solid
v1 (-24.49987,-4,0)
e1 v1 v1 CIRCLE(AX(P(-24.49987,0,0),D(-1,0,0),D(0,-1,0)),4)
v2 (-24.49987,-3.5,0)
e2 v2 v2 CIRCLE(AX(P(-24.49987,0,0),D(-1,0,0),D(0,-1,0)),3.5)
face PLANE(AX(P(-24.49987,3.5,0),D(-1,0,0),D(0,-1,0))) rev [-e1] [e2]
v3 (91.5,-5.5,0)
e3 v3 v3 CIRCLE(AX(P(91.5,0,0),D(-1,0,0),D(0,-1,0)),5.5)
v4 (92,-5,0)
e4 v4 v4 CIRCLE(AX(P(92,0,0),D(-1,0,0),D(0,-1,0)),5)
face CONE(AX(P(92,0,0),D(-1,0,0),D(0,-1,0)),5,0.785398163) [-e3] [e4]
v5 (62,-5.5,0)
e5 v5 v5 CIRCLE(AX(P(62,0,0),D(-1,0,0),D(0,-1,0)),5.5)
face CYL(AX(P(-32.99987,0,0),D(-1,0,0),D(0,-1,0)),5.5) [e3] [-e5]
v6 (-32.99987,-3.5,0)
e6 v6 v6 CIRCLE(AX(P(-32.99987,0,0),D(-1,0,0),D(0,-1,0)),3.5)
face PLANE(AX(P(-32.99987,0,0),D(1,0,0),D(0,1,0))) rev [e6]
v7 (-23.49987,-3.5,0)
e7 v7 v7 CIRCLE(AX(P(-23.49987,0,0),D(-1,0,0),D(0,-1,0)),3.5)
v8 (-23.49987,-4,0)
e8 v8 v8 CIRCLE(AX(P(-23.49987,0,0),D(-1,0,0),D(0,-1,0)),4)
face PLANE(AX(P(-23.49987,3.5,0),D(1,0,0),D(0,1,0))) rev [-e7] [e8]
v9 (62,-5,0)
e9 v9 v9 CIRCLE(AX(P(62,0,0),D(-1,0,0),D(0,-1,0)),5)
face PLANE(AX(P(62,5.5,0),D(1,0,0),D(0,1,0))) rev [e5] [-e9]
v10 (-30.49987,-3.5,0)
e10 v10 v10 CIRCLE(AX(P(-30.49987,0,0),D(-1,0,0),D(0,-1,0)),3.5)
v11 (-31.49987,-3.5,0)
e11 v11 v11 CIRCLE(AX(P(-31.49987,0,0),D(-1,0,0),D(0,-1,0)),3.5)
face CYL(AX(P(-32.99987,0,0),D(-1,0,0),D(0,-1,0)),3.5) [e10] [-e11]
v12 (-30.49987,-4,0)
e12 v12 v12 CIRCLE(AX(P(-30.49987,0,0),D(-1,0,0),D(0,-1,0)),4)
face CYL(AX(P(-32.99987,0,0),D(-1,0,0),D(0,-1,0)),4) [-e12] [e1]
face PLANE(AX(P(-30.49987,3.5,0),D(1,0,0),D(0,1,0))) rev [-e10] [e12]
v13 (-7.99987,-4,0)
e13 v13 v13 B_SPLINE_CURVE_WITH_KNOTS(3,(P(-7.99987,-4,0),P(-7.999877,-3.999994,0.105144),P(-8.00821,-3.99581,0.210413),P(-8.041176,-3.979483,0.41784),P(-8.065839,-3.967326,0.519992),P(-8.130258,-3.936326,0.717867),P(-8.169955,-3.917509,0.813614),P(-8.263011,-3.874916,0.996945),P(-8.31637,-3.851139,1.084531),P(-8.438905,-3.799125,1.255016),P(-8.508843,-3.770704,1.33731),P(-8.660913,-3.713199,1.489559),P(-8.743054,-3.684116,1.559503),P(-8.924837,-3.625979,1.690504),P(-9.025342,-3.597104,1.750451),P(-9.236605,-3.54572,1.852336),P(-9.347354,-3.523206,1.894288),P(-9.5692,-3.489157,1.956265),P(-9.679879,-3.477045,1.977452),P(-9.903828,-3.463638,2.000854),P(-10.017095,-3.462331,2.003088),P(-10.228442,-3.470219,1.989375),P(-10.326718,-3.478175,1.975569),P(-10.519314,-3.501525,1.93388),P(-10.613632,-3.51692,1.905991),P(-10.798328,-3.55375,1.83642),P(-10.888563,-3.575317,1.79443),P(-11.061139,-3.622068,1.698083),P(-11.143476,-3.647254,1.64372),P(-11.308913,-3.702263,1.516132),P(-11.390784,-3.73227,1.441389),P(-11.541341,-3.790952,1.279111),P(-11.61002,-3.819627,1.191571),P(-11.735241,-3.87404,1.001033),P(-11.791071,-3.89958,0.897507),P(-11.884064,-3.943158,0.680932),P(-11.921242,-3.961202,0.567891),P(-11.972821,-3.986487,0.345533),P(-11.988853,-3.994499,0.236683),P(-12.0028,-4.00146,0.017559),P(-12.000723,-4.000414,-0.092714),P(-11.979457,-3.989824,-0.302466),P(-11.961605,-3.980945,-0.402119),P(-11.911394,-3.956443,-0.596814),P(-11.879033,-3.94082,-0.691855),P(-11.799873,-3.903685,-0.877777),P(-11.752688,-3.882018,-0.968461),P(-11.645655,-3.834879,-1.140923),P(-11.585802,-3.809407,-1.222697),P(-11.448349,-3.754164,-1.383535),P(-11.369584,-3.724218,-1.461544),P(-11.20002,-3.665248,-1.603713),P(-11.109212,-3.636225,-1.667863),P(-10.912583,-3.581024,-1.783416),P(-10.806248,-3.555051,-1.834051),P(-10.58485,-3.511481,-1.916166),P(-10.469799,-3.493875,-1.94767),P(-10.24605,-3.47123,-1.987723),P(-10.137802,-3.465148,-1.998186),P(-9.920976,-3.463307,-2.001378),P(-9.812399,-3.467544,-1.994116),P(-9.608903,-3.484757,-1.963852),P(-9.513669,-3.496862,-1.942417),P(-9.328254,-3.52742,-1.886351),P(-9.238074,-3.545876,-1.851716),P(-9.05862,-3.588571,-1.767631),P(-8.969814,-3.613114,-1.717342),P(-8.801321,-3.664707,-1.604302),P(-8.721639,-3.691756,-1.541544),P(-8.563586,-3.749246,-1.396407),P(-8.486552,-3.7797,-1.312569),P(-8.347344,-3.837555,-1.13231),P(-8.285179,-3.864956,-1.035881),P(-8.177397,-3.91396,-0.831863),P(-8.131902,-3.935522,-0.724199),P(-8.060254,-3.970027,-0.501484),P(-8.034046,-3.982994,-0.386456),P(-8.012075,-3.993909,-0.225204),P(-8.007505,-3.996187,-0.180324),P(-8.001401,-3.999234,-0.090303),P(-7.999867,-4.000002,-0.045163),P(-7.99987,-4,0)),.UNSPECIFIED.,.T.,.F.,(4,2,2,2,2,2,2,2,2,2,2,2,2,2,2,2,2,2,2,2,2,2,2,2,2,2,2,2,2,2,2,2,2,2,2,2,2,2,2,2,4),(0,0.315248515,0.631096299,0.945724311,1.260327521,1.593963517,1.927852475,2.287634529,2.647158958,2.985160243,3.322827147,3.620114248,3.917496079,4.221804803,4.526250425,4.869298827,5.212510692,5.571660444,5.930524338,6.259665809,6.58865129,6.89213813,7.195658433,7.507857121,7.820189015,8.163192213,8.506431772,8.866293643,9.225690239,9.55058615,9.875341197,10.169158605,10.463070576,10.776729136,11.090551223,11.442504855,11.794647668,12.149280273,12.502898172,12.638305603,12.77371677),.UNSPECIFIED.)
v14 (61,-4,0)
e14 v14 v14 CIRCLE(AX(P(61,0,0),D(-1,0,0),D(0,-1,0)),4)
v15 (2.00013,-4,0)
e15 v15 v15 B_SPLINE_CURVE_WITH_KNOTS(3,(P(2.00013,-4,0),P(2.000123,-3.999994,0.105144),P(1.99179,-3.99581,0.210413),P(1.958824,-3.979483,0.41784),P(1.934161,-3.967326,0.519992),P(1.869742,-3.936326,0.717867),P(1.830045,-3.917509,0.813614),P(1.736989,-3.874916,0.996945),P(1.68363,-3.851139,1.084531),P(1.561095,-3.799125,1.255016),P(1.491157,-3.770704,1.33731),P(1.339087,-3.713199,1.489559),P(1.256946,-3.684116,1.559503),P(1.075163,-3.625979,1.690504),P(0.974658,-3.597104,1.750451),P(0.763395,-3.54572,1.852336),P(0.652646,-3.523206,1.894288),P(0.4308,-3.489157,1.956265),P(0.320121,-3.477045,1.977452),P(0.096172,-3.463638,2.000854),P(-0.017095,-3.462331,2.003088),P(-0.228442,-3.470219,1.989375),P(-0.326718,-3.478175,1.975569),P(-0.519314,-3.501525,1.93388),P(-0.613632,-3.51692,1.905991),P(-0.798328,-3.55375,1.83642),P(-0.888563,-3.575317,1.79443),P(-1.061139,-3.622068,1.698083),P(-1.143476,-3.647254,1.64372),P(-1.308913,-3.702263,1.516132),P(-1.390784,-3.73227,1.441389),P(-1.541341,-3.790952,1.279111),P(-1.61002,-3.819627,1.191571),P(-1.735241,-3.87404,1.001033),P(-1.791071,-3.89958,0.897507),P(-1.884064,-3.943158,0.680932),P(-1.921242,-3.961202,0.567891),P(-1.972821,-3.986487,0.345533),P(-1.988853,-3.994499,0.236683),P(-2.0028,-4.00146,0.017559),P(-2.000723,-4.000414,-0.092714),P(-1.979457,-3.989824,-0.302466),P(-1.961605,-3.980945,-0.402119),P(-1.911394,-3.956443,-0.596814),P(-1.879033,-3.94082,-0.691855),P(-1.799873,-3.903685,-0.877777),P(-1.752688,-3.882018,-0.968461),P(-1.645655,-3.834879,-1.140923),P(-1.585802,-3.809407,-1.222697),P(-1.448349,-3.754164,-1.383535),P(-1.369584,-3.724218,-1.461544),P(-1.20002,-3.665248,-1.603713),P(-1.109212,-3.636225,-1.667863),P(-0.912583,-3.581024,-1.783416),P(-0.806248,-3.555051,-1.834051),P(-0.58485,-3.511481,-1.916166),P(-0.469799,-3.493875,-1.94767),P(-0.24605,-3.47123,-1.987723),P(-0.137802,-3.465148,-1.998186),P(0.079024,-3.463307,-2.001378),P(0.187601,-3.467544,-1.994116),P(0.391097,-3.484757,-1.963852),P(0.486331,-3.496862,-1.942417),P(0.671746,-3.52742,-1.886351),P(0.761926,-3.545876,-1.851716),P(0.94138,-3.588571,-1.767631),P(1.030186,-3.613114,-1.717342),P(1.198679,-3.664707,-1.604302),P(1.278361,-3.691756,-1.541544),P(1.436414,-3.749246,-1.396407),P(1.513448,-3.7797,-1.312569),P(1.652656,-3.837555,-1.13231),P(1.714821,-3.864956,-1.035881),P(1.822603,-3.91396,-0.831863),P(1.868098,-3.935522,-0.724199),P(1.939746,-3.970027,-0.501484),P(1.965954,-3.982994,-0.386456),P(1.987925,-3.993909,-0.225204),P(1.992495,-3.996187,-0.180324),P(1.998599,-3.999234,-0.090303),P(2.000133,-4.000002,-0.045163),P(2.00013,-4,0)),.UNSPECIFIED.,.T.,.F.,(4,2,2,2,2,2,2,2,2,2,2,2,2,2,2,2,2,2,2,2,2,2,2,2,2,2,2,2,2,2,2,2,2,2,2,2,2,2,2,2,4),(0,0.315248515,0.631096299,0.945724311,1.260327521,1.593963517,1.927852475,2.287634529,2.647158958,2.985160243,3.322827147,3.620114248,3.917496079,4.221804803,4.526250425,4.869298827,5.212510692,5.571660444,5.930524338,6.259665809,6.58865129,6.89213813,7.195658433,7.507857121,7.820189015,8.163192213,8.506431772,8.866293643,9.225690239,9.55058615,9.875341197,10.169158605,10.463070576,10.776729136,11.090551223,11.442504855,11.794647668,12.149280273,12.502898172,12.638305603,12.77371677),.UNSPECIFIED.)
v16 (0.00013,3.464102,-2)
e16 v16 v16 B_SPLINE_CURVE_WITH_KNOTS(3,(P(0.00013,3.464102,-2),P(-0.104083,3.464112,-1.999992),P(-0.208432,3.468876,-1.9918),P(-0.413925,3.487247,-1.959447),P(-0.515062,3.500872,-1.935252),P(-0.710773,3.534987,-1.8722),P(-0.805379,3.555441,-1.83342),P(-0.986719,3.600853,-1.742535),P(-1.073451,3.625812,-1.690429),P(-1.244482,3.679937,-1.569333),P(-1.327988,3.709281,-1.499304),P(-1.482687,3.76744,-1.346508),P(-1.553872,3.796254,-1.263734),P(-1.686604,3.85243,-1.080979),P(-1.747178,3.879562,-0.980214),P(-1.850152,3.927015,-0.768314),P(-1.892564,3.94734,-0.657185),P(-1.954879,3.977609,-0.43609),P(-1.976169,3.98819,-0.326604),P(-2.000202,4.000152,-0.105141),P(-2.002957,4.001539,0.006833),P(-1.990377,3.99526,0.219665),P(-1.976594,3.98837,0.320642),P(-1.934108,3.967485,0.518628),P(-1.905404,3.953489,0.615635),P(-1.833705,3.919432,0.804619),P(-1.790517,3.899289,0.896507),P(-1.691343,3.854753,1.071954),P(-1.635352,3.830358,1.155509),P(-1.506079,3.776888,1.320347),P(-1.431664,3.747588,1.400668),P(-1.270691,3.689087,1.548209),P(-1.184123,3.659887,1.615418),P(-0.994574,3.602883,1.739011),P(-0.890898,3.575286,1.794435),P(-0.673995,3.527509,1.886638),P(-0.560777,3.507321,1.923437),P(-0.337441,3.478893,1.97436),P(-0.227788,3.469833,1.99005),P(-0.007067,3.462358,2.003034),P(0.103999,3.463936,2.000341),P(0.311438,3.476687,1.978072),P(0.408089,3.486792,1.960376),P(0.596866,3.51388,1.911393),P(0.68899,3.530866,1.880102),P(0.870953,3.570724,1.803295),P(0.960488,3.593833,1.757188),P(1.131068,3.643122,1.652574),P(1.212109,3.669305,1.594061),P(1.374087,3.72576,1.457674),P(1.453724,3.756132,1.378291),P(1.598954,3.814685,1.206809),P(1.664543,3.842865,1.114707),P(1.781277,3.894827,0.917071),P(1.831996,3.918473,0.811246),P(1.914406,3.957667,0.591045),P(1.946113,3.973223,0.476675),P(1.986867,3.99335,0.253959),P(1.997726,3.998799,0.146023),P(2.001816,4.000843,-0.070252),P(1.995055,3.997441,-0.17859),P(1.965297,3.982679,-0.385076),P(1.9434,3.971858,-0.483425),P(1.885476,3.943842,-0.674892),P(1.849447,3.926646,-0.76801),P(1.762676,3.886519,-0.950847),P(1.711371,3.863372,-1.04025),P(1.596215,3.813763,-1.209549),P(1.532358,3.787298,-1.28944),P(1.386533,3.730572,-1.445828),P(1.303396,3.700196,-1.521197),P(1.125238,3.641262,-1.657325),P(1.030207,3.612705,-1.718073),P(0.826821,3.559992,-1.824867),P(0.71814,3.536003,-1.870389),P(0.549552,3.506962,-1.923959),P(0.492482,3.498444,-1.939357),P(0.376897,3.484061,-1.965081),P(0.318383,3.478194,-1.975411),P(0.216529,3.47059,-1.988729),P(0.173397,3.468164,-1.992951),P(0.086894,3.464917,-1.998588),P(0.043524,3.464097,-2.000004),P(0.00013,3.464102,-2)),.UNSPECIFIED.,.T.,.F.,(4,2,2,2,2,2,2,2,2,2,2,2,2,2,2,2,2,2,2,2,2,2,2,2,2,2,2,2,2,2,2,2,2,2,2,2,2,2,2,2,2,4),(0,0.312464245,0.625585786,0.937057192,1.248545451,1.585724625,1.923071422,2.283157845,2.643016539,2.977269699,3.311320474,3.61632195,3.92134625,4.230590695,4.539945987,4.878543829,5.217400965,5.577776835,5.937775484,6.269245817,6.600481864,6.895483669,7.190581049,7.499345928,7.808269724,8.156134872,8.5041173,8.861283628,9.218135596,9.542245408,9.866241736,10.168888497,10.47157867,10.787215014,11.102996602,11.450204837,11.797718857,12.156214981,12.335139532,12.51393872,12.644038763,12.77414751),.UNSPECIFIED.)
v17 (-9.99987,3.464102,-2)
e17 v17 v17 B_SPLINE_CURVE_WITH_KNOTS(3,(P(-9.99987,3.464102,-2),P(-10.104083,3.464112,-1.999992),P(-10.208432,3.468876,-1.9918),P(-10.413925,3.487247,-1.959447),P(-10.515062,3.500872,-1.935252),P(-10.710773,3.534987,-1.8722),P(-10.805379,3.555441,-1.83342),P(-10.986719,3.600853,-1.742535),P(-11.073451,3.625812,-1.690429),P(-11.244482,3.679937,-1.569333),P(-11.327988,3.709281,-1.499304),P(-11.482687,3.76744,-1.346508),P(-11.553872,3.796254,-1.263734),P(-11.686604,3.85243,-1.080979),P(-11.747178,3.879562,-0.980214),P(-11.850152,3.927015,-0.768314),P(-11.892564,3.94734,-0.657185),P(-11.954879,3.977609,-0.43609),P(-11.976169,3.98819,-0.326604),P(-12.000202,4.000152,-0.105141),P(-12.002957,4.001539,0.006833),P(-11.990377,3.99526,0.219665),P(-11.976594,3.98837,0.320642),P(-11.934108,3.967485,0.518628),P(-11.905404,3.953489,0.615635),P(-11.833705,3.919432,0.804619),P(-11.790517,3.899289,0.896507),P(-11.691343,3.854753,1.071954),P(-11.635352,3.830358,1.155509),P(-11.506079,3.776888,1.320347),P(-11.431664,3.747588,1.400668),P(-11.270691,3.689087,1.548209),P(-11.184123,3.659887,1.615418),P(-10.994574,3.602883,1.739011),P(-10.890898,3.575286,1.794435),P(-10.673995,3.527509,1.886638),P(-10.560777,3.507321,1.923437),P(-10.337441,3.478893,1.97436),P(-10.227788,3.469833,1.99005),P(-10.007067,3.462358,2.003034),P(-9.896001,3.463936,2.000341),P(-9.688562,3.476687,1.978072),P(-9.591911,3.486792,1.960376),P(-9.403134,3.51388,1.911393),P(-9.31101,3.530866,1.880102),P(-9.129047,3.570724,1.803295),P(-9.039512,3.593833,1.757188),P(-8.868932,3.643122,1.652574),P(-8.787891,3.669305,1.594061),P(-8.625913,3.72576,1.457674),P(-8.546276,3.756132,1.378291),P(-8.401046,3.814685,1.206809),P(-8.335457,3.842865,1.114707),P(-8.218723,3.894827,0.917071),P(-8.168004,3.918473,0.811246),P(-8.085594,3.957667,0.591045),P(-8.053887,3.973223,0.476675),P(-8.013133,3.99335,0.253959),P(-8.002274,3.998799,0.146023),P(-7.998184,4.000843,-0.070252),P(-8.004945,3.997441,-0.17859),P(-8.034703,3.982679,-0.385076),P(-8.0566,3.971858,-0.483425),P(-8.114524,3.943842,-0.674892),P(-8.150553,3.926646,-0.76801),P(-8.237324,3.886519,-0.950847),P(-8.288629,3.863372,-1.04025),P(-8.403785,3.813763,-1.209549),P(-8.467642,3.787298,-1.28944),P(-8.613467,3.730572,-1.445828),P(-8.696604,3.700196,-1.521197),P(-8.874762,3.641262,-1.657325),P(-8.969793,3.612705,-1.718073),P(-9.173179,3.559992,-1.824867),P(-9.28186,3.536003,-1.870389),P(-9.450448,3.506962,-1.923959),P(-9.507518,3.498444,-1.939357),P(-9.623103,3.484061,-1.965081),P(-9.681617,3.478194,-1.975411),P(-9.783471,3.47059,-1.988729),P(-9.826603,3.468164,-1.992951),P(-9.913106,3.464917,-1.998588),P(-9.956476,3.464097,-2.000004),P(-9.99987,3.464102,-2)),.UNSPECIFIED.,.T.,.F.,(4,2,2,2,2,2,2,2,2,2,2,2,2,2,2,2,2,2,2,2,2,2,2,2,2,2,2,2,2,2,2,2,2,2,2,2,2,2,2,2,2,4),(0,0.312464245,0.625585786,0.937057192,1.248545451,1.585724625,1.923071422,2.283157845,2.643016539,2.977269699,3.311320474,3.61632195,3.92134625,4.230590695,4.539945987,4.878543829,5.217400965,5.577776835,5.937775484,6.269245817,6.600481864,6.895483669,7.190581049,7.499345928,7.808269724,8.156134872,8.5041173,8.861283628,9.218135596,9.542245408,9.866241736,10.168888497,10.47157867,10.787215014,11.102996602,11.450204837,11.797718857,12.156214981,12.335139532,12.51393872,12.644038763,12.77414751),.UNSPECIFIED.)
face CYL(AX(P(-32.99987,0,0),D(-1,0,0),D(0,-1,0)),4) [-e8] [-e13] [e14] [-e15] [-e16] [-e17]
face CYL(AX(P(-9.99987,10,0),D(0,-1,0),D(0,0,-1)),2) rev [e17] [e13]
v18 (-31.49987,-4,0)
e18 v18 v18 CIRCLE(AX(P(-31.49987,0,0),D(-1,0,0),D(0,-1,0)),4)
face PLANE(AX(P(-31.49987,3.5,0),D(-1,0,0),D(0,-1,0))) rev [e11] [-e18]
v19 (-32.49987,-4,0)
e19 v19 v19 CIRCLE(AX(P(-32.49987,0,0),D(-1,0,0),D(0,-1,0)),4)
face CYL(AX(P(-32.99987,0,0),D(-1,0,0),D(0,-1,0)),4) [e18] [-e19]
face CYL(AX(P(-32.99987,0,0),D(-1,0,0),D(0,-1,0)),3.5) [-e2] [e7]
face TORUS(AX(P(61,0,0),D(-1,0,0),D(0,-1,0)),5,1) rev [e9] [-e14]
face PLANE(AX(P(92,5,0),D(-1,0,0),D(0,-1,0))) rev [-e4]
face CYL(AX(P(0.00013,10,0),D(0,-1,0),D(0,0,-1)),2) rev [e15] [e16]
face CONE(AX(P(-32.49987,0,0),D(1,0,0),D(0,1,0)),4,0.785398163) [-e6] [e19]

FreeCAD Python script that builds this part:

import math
import FreeCAD as App
import Part
import Sketcher

V = App.Vector

doc = App.newDocument("Part")
params = doc.addObject("Spreadsheet::Sheet", "Params")
for row, (alias, value) in enumerate([
    ("sketch1_radius", "1 mm"),
    ("sketch1_width", "1 mm"),
    ("sketch1_width2", "6 mm"),
    ("sketch1_height", "5 mm"),
    ("sketch1_width3", "29.5 mm"),
    ("revolution_angle", "360 deg"),
    ("sketch2_diameter", "4 mm"),
], start=1):
    params.set(f"A{row}", alias)
    params.set(f"B{row}", "=" + value)
    params.setAlias(f"B{row}", alias)

body = doc.addObject("PartDesign::Body", "Body")

# Sketch on XY plane
sketch1 = doc.addObject("Sketcher::SketchObject", "Sketch")
body.addObject(sketch1)
sketch1.AttachmentSupport = (doc.XY_Plane, [""])
sketch1.MapMode = "FlatFace"
sketch1.addGeometry(Part.LineSegment(V(-32.99987, 3.5, 0), V(-32.99987, 0, 0)), False)
sketch1.addGeometry(Part.LineSegment(V(-32.99987, 0, 0), V(92, 0, 0)), False)
sketch1.addGeometry(Part.LineSegment(V(92, 0, 0), V(92, 5, 0)), False)
sketch1.addGeometry(Part.LineSegment(V(92, 5, 0), V(91.5, 5.5, 0)), False)
sketch1.addGeometry(Part.LineSegment(V(91.5, 5.5, 0), V(62, 5.5, 0)), False)
sketch1.addGeometry(Part.LineSegment(V(62, 5.5, 0), V(62, 5, 0)), False)
sketch1.addGeometry(Part.ArcOfCircle(Part.Circle(V(61, 5, 0), V(0, 0, 1), 1), math.radians(-90), math.radians(0)), False)
sketch1.addGeometry(Part.LineSegment(V(61, 4, 0), V(-23.49987, 4, 0)), False)
sketch1.addGeometry(Part.LineSegment(V(-23.49987, 4, 0), V(-23.49987, 3.5, 0)), False)
sketch1.addGeometry(Part.LineSegment(V(-23.49987, 3.5, 0), V(-24.49987, 3.5, 0)), False)
sketch1.addGeometry(Part.LineSegment(V(-24.49987, 3.5, 0), V(-24.49987, 4, 0)), False)
sketch1.addGeometry(Part.LineSegment(V(-24.49987, 4, 0), V(-30.49987, 4, 0)), False)
sketch1.addGeometry(Part.LineSegment(V(-30.49987, 4, 0), V(-30.49987, 3.5, 0)), False)
sketch1.addGeometry(Part.LineSegment(V(-30.49987, 3.5, 0), V(-31.49987, 3.5, 0)), False)
sketch1.addGeometry(Part.LineSegment(V(-31.49987, 3.5, 0), V(-31.49987, 4, 0)), False)
sketch1.addGeometry(Part.LineSegment(V(-31.49987, 4, 0), V(-32.49987, 4, 0)), False)
sketch1.addGeometry(Part.LineSegment(V(-32.49987, 4, 0), V(-32.99987, 3.5, 0)), False)
sketch1.addConstraint(Sketcher.Constraint("Coincident", 0, 2, 1, 1))
sketch1.addConstraint(Sketcher.Constraint("Coincident", 1, 2, 2, 1))
sketch1.addConstraint(Sketcher.Constraint("Coincident", 2, 2, 3, 1))
sketch1.addConstraint(Sketcher.Constraint("Coincident", 3, 2, 4, 1))
sketch1.addConstraint(Sketcher.Constraint("Coincident", 4, 2, 5, 1))
sketch1.addConstraint(Sketcher.Constraint("Tangent", 5, 2, 6, 2))
sketch1.addConstraint(Sketcher.Constraint("Tangent", 6, 1, 7, 1))
sketch1.addConstraint(Sketcher.Constraint("Coincident", 7, 2, 8, 1))
sketch1.addConstraint(Sketcher.Constraint("Coincident", 8, 2, 9, 1))
sketch1.addConstraint(Sketcher.Constraint("Coincident", 9, 2, 10, 1))
sketch1.addConstraint(Sketcher.Constraint("Coincident", 10, 2, 11, 1))
sketch1.addConstraint(Sketcher.Constraint("Coincident", 11, 2, 12, 1))
sketch1.addConstraint(Sketcher.Constraint("Coincident", 12, 2, 13, 1))
sketch1.addConstraint(Sketcher.Constraint("Coincident", 13, 2, 14, 1))
sketch1.addConstraint(Sketcher.Constraint("Coincident", 14, 2, 15, 1))
sketch1.addConstraint(Sketcher.Constraint("Coincident", 15, 2, 16, 1))
sketch1.addConstraint(Sketcher.Constraint("Coincident", 16, 2, 0, 1))
sketch1.addConstraint(Sketcher.Constraint("Vertical", 0))
sketch1.addConstraint(Sketcher.Constraint("Horizontal", 1))
sketch1.addConstraint(Sketcher.Constraint("Vertical", 2))
sketch1.addConstraint(Sketcher.Constraint("Horizontal", 4))
sketch1.addConstraint(Sketcher.Constraint("Vertical", 5))
sketch1.addConstraint(Sketcher.Constraint("Horizontal", 7))
sketch1.addConstraint(Sketcher.Constraint("Vertical", 8))
sketch1.addConstraint(Sketcher.Constraint("Horizontal", 9))
sketch1.addConstraint(Sketcher.Constraint("Vertical", 10))
sketch1.addConstraint(Sketcher.Constraint("Horizontal", 11))
sketch1.addConstraint(Sketcher.Constraint("Vertical", 12))
sketch1.addConstraint(Sketcher.Constraint("Horizontal", 13))
sketch1.addConstraint(Sketcher.Constraint("Vertical", 14))
sketch1.addConstraint(Sketcher.Constraint("Horizontal", 15))
sketch1.addConstraint(Sketcher.Constraint("PointOnObject", 0, 2, -1))
sketch1.addConstraint(Sketcher.Constraint("Perpendicular", 3, 16))
sketch1.addConstraint(Sketcher.Constraint("Horizontal", 6, 3, 2, 2))
sketch1.addConstraint(Sketcher.Constraint("Horizontal", 7, 2, 10, 2))
sketch1.addConstraint(Sketcher.Constraint("Horizontal", 9, 2, 12, 2))
sketch1.addConstraint(Sketcher.Constraint("Horizontal", 11, 2, 14, 2))
sketch1.addConstraint(Sketcher.Constraint("Horizontal", 13, 2, 16, 2))
sketch1.addConstraint(Sketcher.Constraint("Equal", 9, 13))
sketch1.addConstraint(Sketcher.Constraint("Equal", 13, 15))
sketch1.addConstraint(Sketcher.Constraint("Equal", 5, 8))
sketch1.addConstraint(Sketcher.Constraint("Equal", 3, 16))
sketch1.addConstraint(Sketcher.Constraint("Radius", 6, 1.0))
sketch1.addConstraint(Sketcher.Constraint("DistanceX", 9, 2, 9, 1, 1.0))
sketch1.addConstraint(Sketcher.Constraint("DistanceX", 11, 2, 11, 1, 6.0))
sketch1.addConstraint(Sketcher.Constraint("DistanceY", 2, 1, 2, 2, 5.0))
sketch1.addConstraint(Sketcher.Constraint("DistanceX", 4, 2, 4, 1, 29.5))
sketch1.addConstraint(Sketcher.Constraint("DistanceY", 0, 2, 0, 1, 3.5))
sketch1.addConstraint(Sketcher.Constraint("DistanceX", -1, 1, 6, 3, 61.0))
sketch1.addConstraint(Sketcher.Constraint("DistanceX", 1, 1, 1, 2, 124.99987))
sketch1.setExpression("Constraints[42]", "Params.sketch1_radius")
sketch1.setExpression("Constraints[43]", "Params.sketch1_width")
sketch1.setExpression("Constraints[44]", "Params.sketch1_width2")
sketch1.setExpression("Constraints[45]", "Params.sketch1_height")
sketch1.setExpression("Constraints[46]", "Params.sketch1_width3")
revolution = doc.addObject("PartDesign::Revolution", "Revolution")
body.addObject(revolution)
revolution.Profile = sketch1
revolution.ReferenceAxis = (sketch1, ["H_Axis"])
revolution.setExpression("Angle", "Params.revolution_angle")

# Sketch on XZ plane
sketch2 = doc.addObject("Sketcher::SketchObject", "Sketch001")
body.addObject(sketch2)
sketch2.AttachmentSupport = (doc.XZ_Plane, [""])
sketch2.MapMode = "FlatFace"
sketch2.addGeometry(Part.Circle(V(-9.99987, 0, 0), V(0, 0, 1), 2), False)
sketch2.addGeometry(Part.Circle(V(0.00013, 0, 0), V(0, 0, 1), 2), False)
sketch2.addConstraint(Sketcher.Constraint("Equal", 0, 1))
sketch2.addConstraint(Sketcher.Constraint("PointOnObject", 0, 3, -1))
sketch2.addConstraint(Sketcher.Constraint("PointOnObject", 1, 3, -1))
sketch2.addConstraint(Sketcher.Constraint("Diameter", 0, 4.0))
sketch2.addConstraint(Sketcher.Constraint("DistanceX", 0, 3, 1, 3, 10.0))
sketch2.addConstraint(Sketcher.Constraint("DistanceX", 0, 3, -1, 1, 9.99987))
sketch2.setExpression("Constraints[3]", "Params.sketch2_diameter")
pocket1 = doc.addObject("PartDesign::Pocket", "Pocket")
body.addObject(pocket1)
pocket1.Profile = sketch2
pocket1.Type = "ThroughAll"
pocket1.Midplane = True

doc.recompute()
